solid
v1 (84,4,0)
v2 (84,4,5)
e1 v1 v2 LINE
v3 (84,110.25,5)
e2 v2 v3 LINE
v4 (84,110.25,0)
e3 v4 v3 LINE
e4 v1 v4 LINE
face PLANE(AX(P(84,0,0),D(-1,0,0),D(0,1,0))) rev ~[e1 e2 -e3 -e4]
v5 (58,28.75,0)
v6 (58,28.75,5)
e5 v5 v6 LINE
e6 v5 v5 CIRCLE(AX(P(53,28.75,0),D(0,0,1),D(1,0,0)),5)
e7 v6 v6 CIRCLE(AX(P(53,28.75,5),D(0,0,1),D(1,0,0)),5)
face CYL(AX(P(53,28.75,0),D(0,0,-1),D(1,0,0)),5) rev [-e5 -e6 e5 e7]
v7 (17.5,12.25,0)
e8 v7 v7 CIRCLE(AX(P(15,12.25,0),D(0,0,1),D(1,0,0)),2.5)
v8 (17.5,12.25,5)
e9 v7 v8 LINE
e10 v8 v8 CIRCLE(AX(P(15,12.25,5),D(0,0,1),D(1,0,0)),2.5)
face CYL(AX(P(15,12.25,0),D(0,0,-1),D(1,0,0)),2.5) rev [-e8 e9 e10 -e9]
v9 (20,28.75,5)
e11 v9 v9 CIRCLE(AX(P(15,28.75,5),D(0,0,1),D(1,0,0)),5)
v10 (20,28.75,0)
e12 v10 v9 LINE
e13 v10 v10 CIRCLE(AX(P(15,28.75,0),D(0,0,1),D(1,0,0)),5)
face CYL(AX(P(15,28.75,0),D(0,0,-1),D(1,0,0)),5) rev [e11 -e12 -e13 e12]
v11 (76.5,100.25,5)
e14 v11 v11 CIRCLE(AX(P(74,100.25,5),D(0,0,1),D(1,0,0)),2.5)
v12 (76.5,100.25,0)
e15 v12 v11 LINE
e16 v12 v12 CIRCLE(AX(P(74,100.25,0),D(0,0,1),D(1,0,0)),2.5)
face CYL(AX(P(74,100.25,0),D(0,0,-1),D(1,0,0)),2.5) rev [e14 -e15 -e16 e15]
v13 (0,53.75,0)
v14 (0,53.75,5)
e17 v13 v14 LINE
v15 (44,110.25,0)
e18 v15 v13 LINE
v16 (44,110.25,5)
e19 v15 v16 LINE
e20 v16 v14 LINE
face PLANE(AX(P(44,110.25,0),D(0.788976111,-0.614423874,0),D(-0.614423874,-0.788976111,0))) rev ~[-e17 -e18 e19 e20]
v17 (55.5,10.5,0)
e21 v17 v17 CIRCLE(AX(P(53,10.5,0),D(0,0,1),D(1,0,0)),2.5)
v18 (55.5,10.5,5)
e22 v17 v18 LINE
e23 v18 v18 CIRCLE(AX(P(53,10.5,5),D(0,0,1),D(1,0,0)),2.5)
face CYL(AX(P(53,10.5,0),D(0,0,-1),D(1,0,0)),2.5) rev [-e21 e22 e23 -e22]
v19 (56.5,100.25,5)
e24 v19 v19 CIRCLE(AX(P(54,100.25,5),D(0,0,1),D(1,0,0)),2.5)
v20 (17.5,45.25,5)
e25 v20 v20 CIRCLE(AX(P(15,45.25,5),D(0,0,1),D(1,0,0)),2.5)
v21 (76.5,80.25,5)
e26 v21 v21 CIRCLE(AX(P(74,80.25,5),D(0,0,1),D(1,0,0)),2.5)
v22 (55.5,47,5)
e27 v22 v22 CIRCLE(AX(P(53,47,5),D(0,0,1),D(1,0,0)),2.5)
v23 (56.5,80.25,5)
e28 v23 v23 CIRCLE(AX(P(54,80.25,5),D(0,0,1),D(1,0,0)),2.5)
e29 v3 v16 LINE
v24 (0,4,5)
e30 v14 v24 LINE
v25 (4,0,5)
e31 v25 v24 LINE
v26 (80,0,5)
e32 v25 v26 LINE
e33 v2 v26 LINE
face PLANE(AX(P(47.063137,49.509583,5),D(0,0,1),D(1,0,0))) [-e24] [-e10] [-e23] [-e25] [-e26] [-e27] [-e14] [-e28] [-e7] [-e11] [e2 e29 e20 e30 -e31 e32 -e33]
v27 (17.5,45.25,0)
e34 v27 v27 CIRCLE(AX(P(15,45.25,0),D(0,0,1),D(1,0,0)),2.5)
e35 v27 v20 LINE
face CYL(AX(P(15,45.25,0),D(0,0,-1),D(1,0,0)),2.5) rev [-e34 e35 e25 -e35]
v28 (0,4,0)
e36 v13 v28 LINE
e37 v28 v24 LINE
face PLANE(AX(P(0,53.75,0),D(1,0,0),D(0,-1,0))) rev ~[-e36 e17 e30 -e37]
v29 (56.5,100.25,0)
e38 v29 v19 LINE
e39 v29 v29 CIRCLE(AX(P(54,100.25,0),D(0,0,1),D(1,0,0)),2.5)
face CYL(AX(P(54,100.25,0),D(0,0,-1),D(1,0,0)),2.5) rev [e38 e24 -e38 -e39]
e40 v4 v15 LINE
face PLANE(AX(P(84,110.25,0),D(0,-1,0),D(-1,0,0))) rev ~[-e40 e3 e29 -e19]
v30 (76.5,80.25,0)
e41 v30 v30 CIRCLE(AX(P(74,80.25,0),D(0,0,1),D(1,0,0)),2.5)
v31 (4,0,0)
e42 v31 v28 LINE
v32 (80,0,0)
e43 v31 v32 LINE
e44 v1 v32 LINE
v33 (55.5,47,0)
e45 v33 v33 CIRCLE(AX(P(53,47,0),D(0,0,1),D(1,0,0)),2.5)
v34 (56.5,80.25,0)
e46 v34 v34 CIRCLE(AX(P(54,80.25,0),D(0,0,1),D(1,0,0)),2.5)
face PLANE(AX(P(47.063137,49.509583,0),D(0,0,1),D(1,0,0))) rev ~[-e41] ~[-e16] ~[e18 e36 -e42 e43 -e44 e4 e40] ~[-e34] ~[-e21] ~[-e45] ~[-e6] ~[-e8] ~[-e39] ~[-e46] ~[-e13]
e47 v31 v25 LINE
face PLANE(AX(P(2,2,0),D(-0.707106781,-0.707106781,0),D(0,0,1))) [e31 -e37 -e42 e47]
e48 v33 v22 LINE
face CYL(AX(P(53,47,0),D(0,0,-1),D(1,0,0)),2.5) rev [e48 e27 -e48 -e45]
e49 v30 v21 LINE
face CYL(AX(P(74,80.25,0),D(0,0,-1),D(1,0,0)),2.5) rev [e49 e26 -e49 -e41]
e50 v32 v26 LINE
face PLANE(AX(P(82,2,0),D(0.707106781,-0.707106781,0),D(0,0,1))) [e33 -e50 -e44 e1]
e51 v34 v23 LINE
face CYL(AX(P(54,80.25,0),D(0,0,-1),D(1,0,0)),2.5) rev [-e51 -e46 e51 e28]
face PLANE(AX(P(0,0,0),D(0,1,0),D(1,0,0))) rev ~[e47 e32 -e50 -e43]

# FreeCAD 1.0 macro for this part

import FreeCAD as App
import Part
import Sketcher


def edges_at(feature, points):
    """Names of the edges that pass closest to the given points."""
    edges = feature.Shape.Edges
    near = lambda p: min(range(len(edges)), key=lambda i: edges[i].distToShape(Part.Vertex(*p))[0])
    return sorted({f"Edge{near(p) + 1}" for p in points})

doc = App.newDocument("Part")
params = doc.addObject("Spreadsheet::Sheet", "Params")
for row, (alias, value) in enumerate([
    ("sketch1_diameter", "5 mm"),
    ("sketch1_diameter2", "10 mm"),
    ("sketch1_width", "40 mm"),
    ("sketch1_width2", "84 mm"),
    ("sketch1_height", "53.75 mm"),
    ("pad1_length", "5 mm"),
    ("chamfer_size", "4 mm"),
], start=1):
    params.set(f"A{row}", alias)
    params.set(f"B{row}", "=" + value)
    params.setAlias(f"B{row}", alias)

body = doc.addObject("PartDesign::Body", "Body")

sketch1 = doc.addObject("Sketcher::SketchObject", "Sketch")
body.addObject(sketch1)
sketch1.AttachmentSupport = (doc.XY_Plane, [""])
sketch1.MapMode = "FlatFace"
sketch1.addGeometry([
    Part.LineSegment(App.Vector(84, 110.25, 0), App.Vector(44, 110.25, 0)),
    Part.LineSegment(App.Vector(44, 110.25, 0), App.Vector(0, 53.75, 0)),
    Part.LineSegment(App.Vector(0, 53.75, 0), App.Vector(0, 0, 0)),
    Part.LineSegment(App.Vector(0, 0, 0), App.Vector(84, 0, 0)),
    Part.LineSegment(App.Vector(84, 0, 0), App.Vector(84, 110.25, 0)),
    Part.Circle(App.Vector(15, 12.25, 0), App.Vector(0, 0, 1), 2.5),
    Part.Circle(App.Vector(15, 28.75, 0), App.Vector(0, 0, 1), 5),
    Part.Circle(App.Vector(15, 45.25, 0), App.Vector(0, 0, 1), 2.5),
    Part.Circle(App.Vector(53, 10.5, 0), App.Vector(0, 0, 1), 2.5),
    Part.Circle(App.Vector(53, 28.75, 0), App.Vector(0, 0, 1), 5),
    Part.Circle(App.Vector(53, 47, 0), App.Vector(0, 0, 1), 2.5),
    Part.Circle(App.Vector(54, 80.25, 0), App.Vector(0, 0, 1), 2.5),
    Part.Circle(App.Vector(54, 100.25, 0), App.Vector(0, 0, 1), 2.5),
    Part.Circle(App.Vector(74, 80.25, 0), App.Vector(0, 0, 1), 2.5),
    Part.Circle(App.Vector(74, 100.25, 0), App.Vector(0, 0, 1), 2.5),
], False)
sketch1.addConstraint([
    Sketcher.Constraint("Coincident", 0, 2, 1, 1),
    Sketcher.Constraint("Coincident", 1, 2, 2, 1),
    Sketcher.Constraint("Coincident", 2, 2, 3, 1),
    Sketcher.Constraint("Coincident", 3, 2, 4, 1),
    Sketcher.Constraint("Coincident", 4, 2, 0, 1),
    Sketcher.Constraint("Horizontal", 0),
    Sketcher.Constraint("Vertical", 2),
    Sketcher.Constraint("Horizontal", 3),
    Sketcher.Constraint("Vertical", 4),
    Sketcher.Constraint("Coincident", 2, 2, -1, 1),
    Sketcher.Constraint("Equal", 5, 7),
    Sketcher.Constraint("Equal", 7, 8),
    Sketcher.Constraint("Equal", 6, 9),
    Sketcher.Constraint("Equal", 8, 10),
    Sketcher.Constraint("Equal", 10, 11),
    Sketcher.Constraint("Equal", 11, 12),
    Sketcher.Constraint("Equal", 12, 13),
    Sketcher.Constraint("Equal", 13, 14),
    Sketcher.Constraint("Horizontal", 6, 3, 9, 3),
    Sketcher.Constraint("Horizontal", 11, 3, 13, 3),
    Sketcher.Constraint("Horizontal", 12, 3, 14, 3),
    Sketcher.Constraint("Vertical", 5, 3, 6, 3),
    Sketcher.Constraint("Vertical", 6, 3, 7, 3),
    Sketcher.Constraint("Vertical", 8, 3, 9, 3),
    Sketcher.Constraint("Vertical", 9, 3, 10, 3),
    Sketcher.Constraint("Vertical", 11, 3, 12, 3),
    Sketcher.Constraint("Vertical", 13, 3, 14, 3),
    Sketcher.Constraint("Diameter", 5, 5.0),
    Sketcher.Constraint("Diameter", 6, 10.0),
    Sketcher.Constraint("DistanceX", 0, 2, 0, 1, 40.0),
    Sketcher.Constraint("DistanceX", 3, 1, 3, 2, 84.0),
    Sketcher.Constraint("DistanceX", -1, 1, 5, 3, 15.0),
    Sketcher.Constraint("DistanceX", -1, 1, 8, 3, 53.0),
    Sketcher.Constraint("DistanceY", -1, 1, 10, 3, 47.0),
    Sketcher.Constraint("DistanceX", -1, 1, 11, 3, 54.0),
    Sketcher.Constraint("DistanceX", -1, 1, 13, 3, 74.0),
    Sketcher.Constraint("DistanceY", 5, 3, 7, 3, 33.0),
    Sketcher.Constraint("DistanceY", 7, 3, 11, 3, 35.0),
    Sketcher.Constraint("DistanceY", 11, 3, 12, 3, 20.0),
    Sketcher.Constraint("DistanceY", 12, 3, 0, 2, 10.0),
    Sketcher.Constraint("DistanceY", 6, 3, 1, 2, 25.0),
    Sketcher.Constraint("DistanceY", 2, 2, 2, 1, 53.75),
    Sketcher.Constraint("DistanceY", 4, 1, 4, 2, 110.25),
    Sketcher.Constraint("DistanceY", -1, 1, 8, 3, 10.5),
])
sketch1.setExpression("Constraints[27]", "Params.sketch1_diameter")
sketch1.setExpression("Constraints[28]", "Params.sketch1_diameter2")
sketch1.setExpression("Constraints[29]", "Params.sketch1_width")
sketch1.setExpression("Constraints[30]", "Params.sketch1_width2")
sketch1.setExpression("Constraints[41]", "Params.sketch1_height")
pad1 = doc.addObject("PartDesign::Pad", "Pad")
body.addObject(pad1)
pad1.Profile = sketch1
pad1.setExpression("Length", "Params.pad1_length")
doc.recompute()

chamfer = doc.addObject("PartDesign::Chamfer", "Chamfer")
body.addObject(chamfer)
chamfer.Base = (pad1, edges_at(pad1, [(0, 0, 2.5), (84, 0, 2.5)]))
chamfer.setExpression("Size", "Params.chamfer_size")

doc.recompute()
